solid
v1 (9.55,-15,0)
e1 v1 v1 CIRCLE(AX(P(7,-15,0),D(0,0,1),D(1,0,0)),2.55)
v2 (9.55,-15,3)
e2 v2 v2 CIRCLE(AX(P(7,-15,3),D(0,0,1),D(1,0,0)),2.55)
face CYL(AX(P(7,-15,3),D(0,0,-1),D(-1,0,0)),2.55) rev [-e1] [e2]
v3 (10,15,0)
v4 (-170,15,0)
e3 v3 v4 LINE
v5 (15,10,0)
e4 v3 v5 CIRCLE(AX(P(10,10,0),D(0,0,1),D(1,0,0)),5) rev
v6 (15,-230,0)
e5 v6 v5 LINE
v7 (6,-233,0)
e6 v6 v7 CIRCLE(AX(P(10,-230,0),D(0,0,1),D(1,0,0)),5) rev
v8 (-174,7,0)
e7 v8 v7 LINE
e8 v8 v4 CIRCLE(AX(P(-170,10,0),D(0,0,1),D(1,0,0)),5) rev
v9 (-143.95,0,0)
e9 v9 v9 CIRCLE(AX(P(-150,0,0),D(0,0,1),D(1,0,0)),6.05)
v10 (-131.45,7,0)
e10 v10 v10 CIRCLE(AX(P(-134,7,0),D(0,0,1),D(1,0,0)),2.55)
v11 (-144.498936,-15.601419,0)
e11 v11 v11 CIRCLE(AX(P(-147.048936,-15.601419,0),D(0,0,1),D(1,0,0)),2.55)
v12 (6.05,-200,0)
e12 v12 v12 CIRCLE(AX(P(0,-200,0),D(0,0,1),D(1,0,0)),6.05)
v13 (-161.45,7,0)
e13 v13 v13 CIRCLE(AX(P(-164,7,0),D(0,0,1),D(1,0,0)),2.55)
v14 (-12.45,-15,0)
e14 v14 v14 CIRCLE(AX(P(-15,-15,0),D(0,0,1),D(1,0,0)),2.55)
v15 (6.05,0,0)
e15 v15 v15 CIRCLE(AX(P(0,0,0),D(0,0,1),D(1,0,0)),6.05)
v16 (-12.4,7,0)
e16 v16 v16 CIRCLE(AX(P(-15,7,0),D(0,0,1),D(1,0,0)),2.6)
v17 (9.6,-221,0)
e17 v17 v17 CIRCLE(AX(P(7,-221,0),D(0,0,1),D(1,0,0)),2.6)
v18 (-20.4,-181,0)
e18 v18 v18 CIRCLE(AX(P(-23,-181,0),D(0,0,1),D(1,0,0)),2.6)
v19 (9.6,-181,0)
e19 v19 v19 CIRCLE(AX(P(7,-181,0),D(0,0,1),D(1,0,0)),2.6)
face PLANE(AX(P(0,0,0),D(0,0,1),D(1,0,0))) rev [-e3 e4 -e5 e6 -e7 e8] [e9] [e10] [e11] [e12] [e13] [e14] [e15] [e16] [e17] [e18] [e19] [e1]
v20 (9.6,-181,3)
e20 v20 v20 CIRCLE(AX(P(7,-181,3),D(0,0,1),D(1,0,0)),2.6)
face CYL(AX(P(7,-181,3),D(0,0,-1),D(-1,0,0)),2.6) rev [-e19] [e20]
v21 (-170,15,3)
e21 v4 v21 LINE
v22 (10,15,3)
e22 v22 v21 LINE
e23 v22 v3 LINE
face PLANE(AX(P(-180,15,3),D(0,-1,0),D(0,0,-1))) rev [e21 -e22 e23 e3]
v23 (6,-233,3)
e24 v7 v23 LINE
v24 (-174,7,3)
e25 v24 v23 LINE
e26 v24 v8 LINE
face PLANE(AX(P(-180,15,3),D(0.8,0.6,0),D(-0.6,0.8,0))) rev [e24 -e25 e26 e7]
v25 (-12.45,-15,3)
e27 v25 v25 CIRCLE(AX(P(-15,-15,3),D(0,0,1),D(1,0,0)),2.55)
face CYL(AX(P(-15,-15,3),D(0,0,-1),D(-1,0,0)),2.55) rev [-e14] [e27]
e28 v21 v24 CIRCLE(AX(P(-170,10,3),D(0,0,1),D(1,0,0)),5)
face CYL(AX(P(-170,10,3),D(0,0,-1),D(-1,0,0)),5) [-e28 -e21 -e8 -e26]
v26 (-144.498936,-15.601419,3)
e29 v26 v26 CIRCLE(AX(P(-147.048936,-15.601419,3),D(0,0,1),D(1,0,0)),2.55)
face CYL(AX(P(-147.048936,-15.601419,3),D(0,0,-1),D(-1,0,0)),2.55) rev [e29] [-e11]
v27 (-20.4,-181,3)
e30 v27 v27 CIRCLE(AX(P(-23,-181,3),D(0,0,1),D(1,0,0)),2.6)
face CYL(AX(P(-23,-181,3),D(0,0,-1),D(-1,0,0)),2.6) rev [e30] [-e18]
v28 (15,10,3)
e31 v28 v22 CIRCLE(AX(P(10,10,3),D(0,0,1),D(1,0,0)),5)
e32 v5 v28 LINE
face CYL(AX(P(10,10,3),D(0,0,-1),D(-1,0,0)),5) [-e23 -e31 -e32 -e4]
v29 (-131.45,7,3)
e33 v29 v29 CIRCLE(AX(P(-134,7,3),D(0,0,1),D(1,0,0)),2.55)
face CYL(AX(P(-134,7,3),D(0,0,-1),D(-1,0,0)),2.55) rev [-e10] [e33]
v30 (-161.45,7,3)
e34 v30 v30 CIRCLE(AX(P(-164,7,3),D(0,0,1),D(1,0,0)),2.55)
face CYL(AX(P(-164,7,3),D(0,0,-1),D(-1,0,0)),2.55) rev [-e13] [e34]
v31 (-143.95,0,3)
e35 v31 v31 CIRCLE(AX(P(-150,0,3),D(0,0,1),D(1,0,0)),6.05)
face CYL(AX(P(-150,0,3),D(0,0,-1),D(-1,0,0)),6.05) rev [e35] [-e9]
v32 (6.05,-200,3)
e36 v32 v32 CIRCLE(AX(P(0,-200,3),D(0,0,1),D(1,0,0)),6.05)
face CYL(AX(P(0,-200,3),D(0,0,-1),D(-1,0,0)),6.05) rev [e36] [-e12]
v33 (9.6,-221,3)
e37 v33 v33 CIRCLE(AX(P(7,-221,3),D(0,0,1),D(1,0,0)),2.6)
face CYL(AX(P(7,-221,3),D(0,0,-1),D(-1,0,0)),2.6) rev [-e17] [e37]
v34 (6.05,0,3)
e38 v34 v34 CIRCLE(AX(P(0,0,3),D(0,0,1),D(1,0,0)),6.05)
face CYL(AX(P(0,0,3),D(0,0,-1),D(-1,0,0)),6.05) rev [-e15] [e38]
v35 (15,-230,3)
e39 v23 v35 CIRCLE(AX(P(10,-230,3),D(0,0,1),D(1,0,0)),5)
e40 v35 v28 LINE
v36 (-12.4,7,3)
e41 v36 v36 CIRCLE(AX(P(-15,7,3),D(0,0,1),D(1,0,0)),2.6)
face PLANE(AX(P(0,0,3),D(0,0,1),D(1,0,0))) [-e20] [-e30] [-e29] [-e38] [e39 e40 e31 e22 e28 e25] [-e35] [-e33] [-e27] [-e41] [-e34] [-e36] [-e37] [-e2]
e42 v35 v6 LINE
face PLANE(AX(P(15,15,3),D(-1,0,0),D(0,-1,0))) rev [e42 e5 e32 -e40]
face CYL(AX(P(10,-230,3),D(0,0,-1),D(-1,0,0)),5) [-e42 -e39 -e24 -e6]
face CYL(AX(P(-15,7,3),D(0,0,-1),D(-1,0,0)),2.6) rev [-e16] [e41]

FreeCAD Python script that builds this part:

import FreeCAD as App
import Part
import Sketcher

V = App.Vector


def edges_at(feature, points):
    """Names of the edges that pass closest to the given points."""
    edges = feature.Shape.Edges
    near = lambda p: min(range(len(edges)), key=lambda i: edges[i].distToShape(Part.Vertex(*p))[0])
    return sorted({f"Edge{near(p) + 1}" for p in points})


def add_polygon(sketch, points):
    """Adds a closed chain of lines whose ends are joined by coincident constraints."""
    first, n = sketch.GeometryCount, len(points)
    for a, b in zip(points, points[1:] + points[:1]):
        sketch.addGeometry(Part.LineSegment(App.Vector(*a, 0), App.Vector(*b, 0)), False)
    for i in range(n):
        sketch.addConstraint(Sketcher.Constraint("Coincident", first + i, 2, first + (i + 1) % n, 1))

doc = App.newDocument("Part")
body = doc.addObject("PartDesign::Body", "Body")

# Sketch on XY plane
sketch1 = body.newObject("Sketcher::SketchObject", "Sketch")
sketch1.AttachmentSupport = (doc.getObject("XY_Plane"), [""])
sketch1.MapMode = "FlatFace"
add_polygon(sketch1, [(15, 15), (-180, 15), (15, -245)])  # lines 0-2
sketch1.addGeometry(Part.Circle(V(7, -221, 0), V(0, 0, 1), 2.6), False)  # 3
sketch1.addGeometry(Part.Circle(V(0, -200, 0), V(0, 0, 1), 6), False)  # 4
sketch1.addGeometry(Part.Circle(V(7, -181, 0), V(0, 0, 1), 2.6), False)  # 5
sketch1.addGeometry(Part.Circle(V(-23, -181, 0), V(0, 0, 1), 2.6), False)  # 6
sketch1.addGeometry(Part.Circle(V(7, -15, 0), V(0, 0, 1), 2.5), False)  # 7
sketch1.addGeometry(Part.Circle(V(0, 0, 0), V(0, 0, 1), 6), False)  # 8
sketch1.addGeometry(Part.Circle(V(-15, -15, 0), V(0, 0, 1), 2.5), False)  # 9
sketch1.addGeometry(Part.Circle(V(-15, 7, 0), V(0, 0, 1), 2.6), False)  # 10
sketch1.addGeometry(Part.Circle(V(-134, 7, 0), V(0, 0, 1), 2.5), False)  # 11
sketch1.addGeometry(Part.Circle(V(-147, -15.6, 0), V(0, 0, 1), 2.5), False)  # 12
sketch1.addGeometry(Part.Circle(V(-150, 0, 0), V(0, 0, 1), 6), False)  # 13
sketch1.addGeometry(Part.Circle(V(-164, 7, 0), V(0, 0, 1), 2.5), False)  # 14
sketch1.addConstraint([
    Sketcher.Constraint("Horizontal", 0),
    Sketcher.Constraint("Vertical", 2),
    Sketcher.Constraint("Coincident", 8, 3, -1, 1),
    Sketcher.Constraint("Equal", 3, 5),
    Sketcher.Constraint("Equal", 5, 6),
    Sketcher.Constraint("Equal", 4, 8),
    Sketcher.Constraint("Equal", 7, 9),
    Sketcher.Constraint("Equal", 6, 10),
    Sketcher.Constraint("Equal", 9, 11),
    Sketcher.Constraint("Equal", 11, 12),
    Sketcher.Constraint("Equal", 8, 13),
    Sketcher.Constraint("Equal", 12, 14),
    Sketcher.Constraint("PointOnObject", 4, 3, -2),
    Sketcher.Constraint("PointOnObject", 13, 3, -1),
    Sketcher.Constraint("Horizontal", 5, 3, 6, 3),
    Sketcher.Constraint("Horizontal", 7, 3, 9, 3),
    Sketcher.Constraint("Horizontal", 10, 3, 11, 3),
    Sketcher.Constraint("Horizontal", 11, 3, 14, 3),
    Sketcher.Constraint("Vertical", 3, 3, 5, 3),
    Sketcher.Constraint("Vertical", 5, 3, 7, 3),
    Sketcher.Constraint("Vertical", 9, 3, 10, 3),
    Sketcher.Constraint("Diameter", 3, 5.2),
    Sketcher.Constraint("Diameter", 4, 12.1),
    Sketcher.Constraint("Diameter", 7, 5.1),
    Sketcher.Constraint("DistanceX", 0, 2, 0, 1, 195.0),
    Sketcher.Constraint("DistanceY", 2, 1, 2, 2, 260.0),
    Sketcher.Constraint("DistanceX", -1, 1, 3, 3, 7.0),
    Sketcher.Constraint("DistanceY", 3, 3, -1, 1, 221.0),
    Sketcher.Constraint("DistanceY", 4, 3, -1, 1, 200.0),
    Sketcher.Constraint("DistanceY", 5, 3, -1, 1, 181.0),
    Sketcher.Constraint("DistanceX", 6, 3, -1, 1, 23.0),
    Sketcher.Constraint("DistanceY", 7, 3, -1, 1, 15.0),
    Sketcher.Constraint("DistanceX", 9, 3, -1, 1, 15.0),
    Sketcher.Constraint("DistanceY", -1, 1, 10, 3, 7.0),
    Sketcher.Constraint("DistanceX", 11, 3, -1, 1, 134.0),
    Sketcher.Constraint("DistanceX", 13, 3, -1, 1, 150.0),
    Sketcher.Constraint("DistanceX", 14, 3, -1, 1, 164.0),
    Sketcher.Constraint("DistanceX", 0, 2, -1, 1, 180.0),
    Sketcher.Constraint("DistanceY", -1, 1, 0, 2, 15.0),
    Sketcher.Constraint("DistanceY", 12, 3, -1, 1, 15.601419),
    Sketcher.Constraint("DistanceX", 12, 3, -1, 1, 147.048936),
])
pad1 = body.newObject("PartDesign::Pad", "Pad")
pad1.Profile = sketch1
pad1.Length = 3
doc.recompute()

fillet = body.newObject("PartDesign::Fillet", "Fillet")
fillet.Base = (pad1, edges_at(pad1, [(-180, 15, 1.5), (15, 15, 1.5), (15, -245, 1.5)]))
fillet.Radius = 5

doc.recompute()
